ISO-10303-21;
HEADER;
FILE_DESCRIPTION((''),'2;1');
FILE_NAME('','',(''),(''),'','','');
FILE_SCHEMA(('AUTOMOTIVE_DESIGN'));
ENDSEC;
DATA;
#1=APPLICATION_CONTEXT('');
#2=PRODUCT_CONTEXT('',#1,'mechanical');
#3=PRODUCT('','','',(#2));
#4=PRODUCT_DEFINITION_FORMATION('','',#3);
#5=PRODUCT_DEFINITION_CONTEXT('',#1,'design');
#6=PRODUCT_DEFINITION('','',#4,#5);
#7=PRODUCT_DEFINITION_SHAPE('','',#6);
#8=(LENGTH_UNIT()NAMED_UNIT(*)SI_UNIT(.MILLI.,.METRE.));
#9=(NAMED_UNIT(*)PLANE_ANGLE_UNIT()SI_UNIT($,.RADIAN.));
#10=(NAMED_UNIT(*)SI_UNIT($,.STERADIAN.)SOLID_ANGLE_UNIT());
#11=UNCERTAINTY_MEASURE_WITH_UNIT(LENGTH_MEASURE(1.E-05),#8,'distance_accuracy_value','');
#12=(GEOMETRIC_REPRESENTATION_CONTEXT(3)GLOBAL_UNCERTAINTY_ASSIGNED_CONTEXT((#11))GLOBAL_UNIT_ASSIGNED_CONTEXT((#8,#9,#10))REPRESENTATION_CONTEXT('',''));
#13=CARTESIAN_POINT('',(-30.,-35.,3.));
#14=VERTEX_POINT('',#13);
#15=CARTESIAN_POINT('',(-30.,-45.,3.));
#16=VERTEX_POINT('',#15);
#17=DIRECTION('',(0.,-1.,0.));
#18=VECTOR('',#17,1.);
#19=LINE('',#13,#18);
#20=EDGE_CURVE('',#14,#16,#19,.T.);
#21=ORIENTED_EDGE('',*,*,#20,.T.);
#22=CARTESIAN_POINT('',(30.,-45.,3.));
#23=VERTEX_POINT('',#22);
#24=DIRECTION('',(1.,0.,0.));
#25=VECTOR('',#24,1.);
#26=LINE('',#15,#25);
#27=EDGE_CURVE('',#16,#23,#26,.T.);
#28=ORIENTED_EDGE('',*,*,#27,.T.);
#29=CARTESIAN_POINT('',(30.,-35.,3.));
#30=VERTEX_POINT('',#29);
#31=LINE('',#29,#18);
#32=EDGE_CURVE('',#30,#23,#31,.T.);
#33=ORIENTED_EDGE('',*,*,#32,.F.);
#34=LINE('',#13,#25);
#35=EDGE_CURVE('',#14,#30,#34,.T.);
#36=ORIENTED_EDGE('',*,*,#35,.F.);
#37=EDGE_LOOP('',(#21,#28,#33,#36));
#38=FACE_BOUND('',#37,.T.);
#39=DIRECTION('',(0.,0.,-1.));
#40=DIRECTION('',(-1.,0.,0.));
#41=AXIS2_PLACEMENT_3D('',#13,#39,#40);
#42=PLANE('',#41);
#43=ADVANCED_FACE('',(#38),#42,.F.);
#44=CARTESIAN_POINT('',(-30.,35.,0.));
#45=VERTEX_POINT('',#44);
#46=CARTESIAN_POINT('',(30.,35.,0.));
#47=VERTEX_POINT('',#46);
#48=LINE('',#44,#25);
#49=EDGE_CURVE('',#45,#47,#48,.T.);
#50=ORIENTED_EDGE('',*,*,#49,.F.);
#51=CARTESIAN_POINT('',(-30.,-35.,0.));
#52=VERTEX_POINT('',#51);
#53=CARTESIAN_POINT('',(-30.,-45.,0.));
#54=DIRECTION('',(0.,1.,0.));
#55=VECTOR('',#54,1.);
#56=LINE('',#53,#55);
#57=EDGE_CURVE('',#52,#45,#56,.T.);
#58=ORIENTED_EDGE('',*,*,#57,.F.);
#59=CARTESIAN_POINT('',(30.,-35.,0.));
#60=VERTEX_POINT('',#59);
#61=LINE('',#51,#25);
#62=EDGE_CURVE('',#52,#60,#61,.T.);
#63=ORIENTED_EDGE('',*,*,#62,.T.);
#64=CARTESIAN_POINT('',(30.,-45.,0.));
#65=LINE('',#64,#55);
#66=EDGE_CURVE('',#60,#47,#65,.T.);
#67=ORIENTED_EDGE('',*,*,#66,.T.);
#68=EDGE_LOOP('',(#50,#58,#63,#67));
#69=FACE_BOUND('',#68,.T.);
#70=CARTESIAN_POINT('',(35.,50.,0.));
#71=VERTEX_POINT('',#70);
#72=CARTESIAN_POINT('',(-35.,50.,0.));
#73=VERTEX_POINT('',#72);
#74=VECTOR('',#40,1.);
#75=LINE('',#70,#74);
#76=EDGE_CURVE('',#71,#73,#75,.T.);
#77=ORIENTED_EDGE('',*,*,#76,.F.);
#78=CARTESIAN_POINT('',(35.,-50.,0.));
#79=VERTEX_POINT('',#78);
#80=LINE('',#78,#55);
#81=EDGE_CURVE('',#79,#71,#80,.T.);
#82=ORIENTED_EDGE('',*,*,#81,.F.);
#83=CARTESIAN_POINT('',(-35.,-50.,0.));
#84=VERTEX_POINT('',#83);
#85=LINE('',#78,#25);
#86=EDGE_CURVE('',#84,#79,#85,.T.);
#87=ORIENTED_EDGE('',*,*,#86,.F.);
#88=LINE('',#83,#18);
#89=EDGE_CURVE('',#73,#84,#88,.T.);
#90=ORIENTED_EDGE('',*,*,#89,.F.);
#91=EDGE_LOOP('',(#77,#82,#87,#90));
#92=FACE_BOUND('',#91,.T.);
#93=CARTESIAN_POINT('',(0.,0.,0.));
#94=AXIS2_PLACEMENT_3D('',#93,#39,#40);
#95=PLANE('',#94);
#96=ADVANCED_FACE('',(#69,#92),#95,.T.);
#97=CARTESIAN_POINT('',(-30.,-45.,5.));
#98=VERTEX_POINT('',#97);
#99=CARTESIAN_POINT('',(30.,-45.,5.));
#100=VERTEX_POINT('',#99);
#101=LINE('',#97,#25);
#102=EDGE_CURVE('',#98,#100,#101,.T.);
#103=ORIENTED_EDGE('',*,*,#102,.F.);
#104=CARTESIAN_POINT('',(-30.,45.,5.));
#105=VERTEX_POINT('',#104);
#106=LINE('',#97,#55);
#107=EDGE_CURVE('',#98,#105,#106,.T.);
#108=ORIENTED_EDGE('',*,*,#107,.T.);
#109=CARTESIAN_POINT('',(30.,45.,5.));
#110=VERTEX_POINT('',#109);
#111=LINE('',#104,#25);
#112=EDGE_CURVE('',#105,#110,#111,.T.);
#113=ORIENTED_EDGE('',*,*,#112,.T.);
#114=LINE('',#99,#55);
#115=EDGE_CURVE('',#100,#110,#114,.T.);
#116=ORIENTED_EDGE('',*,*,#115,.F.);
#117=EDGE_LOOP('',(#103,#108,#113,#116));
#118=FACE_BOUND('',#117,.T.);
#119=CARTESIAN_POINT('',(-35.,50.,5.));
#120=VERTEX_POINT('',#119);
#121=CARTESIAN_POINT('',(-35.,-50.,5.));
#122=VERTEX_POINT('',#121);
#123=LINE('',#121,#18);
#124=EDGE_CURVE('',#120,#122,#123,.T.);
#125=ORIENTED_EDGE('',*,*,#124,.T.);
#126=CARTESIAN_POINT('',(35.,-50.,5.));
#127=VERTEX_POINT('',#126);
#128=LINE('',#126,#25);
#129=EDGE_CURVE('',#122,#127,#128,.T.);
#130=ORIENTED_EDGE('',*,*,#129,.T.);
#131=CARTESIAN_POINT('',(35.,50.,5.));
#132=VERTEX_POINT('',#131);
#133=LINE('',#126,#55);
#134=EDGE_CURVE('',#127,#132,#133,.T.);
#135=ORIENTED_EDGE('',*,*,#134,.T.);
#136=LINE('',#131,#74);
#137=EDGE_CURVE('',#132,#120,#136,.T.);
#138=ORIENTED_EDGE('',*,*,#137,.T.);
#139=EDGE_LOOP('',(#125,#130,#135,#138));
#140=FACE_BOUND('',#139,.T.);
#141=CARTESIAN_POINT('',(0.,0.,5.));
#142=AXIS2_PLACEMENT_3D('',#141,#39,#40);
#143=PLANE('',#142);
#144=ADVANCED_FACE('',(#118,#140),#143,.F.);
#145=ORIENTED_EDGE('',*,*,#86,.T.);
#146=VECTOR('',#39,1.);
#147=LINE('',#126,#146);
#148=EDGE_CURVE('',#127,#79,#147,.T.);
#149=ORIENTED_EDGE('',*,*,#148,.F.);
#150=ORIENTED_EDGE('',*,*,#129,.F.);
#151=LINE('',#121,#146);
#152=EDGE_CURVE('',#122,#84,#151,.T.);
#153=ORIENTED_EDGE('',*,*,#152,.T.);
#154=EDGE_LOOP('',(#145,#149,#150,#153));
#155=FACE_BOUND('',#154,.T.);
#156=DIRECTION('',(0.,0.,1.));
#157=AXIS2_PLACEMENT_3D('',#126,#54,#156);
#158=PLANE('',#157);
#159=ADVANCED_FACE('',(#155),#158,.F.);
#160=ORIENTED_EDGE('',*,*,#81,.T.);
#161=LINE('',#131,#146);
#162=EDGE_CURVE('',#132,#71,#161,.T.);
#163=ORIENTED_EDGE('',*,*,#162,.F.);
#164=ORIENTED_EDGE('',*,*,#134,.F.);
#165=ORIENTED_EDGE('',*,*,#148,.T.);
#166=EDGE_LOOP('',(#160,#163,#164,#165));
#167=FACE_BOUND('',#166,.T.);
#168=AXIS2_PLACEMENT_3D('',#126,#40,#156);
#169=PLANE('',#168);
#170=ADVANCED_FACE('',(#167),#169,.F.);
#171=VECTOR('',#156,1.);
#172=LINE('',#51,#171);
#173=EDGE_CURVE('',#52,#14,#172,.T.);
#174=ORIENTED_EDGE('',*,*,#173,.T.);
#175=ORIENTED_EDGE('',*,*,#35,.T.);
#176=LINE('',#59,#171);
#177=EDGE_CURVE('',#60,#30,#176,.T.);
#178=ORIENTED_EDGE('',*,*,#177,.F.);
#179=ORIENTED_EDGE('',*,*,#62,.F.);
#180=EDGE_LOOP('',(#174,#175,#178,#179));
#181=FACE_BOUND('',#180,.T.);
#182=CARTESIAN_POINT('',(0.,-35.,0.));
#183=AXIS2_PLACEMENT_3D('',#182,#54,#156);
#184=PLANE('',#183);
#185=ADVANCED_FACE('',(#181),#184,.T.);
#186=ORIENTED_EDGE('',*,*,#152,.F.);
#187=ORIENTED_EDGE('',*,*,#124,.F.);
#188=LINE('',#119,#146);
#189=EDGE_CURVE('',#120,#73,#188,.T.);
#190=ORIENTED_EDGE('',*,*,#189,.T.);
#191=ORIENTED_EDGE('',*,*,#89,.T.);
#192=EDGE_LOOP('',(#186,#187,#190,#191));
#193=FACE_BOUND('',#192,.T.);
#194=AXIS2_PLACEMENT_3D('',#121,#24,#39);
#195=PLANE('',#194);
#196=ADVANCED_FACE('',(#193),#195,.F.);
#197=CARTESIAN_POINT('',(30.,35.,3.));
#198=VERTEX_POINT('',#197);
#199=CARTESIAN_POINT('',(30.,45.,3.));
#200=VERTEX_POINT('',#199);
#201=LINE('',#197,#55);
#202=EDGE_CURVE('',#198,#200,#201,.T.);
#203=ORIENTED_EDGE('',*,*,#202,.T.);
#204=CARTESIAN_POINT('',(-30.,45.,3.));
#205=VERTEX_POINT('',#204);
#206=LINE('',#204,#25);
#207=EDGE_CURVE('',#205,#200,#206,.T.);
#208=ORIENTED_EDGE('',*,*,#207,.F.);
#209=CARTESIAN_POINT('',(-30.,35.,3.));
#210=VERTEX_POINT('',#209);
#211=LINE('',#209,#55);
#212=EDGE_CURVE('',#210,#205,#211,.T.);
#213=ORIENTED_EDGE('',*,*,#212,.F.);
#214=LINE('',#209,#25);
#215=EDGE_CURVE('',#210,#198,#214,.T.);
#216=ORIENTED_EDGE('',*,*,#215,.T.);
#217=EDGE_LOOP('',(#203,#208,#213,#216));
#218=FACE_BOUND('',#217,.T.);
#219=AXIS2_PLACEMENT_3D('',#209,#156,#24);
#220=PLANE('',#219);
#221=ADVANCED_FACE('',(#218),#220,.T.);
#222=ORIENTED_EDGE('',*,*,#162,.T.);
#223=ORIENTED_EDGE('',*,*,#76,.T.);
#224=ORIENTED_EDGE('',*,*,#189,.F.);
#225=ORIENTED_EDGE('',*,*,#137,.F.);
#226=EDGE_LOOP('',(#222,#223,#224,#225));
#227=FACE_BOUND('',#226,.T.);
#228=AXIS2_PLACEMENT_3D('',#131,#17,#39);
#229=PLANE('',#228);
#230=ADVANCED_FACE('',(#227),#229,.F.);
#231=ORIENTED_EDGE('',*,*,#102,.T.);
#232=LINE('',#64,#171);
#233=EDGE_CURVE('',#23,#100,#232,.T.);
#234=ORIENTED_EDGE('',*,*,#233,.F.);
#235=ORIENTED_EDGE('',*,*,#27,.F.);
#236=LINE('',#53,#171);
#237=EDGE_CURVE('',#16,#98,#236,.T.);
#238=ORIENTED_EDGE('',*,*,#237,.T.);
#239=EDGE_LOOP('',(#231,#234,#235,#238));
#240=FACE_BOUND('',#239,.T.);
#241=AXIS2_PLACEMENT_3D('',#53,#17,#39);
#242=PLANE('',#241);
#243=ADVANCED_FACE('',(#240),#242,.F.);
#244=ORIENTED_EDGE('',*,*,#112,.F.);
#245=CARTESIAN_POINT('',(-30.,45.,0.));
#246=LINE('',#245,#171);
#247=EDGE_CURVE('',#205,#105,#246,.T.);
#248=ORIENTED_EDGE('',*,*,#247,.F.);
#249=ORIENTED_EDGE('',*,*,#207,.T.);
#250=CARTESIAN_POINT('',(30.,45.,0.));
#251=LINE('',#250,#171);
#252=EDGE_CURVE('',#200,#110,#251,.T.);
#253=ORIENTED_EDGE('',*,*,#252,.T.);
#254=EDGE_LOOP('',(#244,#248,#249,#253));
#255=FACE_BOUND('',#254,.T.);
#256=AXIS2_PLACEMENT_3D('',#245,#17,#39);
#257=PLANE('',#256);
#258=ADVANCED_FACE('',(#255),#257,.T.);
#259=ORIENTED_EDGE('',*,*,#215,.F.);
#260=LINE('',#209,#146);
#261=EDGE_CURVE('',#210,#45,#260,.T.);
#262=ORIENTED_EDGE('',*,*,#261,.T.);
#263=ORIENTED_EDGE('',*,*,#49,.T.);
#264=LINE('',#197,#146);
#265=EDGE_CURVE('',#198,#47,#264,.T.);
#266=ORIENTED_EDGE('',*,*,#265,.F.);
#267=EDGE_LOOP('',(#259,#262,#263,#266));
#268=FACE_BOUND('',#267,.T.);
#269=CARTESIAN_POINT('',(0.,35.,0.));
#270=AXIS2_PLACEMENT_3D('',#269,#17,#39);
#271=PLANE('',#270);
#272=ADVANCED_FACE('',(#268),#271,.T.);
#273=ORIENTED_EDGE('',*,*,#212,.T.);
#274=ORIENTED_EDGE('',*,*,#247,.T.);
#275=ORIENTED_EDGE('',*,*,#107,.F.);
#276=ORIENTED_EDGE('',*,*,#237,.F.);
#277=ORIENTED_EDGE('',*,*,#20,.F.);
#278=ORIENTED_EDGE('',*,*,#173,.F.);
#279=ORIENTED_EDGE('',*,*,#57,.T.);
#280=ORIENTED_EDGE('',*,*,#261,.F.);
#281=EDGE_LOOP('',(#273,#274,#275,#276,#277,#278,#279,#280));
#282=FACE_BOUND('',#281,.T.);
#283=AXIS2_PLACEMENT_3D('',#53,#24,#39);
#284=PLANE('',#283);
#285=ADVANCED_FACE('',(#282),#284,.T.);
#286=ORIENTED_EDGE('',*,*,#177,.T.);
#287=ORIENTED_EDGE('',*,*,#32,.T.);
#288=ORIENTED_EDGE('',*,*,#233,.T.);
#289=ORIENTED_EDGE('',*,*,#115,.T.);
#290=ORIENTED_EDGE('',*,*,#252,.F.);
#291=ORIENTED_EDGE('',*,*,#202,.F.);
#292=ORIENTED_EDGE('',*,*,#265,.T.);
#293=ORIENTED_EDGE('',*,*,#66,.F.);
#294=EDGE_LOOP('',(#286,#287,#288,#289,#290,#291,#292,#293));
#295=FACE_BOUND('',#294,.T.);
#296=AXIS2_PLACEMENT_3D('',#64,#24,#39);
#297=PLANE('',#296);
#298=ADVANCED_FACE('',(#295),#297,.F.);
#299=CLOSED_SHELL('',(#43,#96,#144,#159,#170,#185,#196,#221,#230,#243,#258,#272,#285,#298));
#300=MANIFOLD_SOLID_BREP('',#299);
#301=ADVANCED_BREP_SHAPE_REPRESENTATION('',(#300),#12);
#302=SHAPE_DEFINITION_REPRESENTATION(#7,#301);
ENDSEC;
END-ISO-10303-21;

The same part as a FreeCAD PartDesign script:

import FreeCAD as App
import Part
import Sketcher
Q = App.Units.Quantity


def add_polygon(sketch, points):
    """Adds a closed chain of lines whose ends are joined by coincident constraints."""
    first, n = sketch.GeometryCount, len(points)
    for a, b in zip(points, points[1:] + points[:1]):
        sketch.addGeometry(Part.LineSegment(App.Vector(*a, 0), App.Vector(*b, 0)), False)
    for i in range(n):
        sketch.addConstraint(Sketcher.Constraint("Coincident", first + i, 2, first + (i + 1) % n, 1))

doc = App.newDocument("Part")
params = doc.addObject("Spreadsheet::Sheet", "Params")
for row, (alias, value) in enumerate([
    ("sketch1_width", "70 mm"),
    ("sketch1_height", "100 mm"),
    ("pad1_length", "5 mm"),
    ("sketch2_width", "60 mm"),
    ("sketch2_height", "90 mm"),
    ("sketch3_width", "60 mm"),
    ("sketch3_height", "3 mm"),
    ("pad2_length", "10 mm"),
    ("sketch4_width", "60 mm"),
    ("sketch4_height", "3 mm"),
    ("pad3_length", "10 mm"),
], start=1):
    params.set(f"A{row}", alias)
    params.set(f"B{row}", "=" + value)
    params.setAlias(f"B{row}", alias)

body = doc.addObject("PartDesign::Body", "Body")

# Sketch on XY plane
sketch1 = body.newObject("Sketcher::SketchObject", "Sketch")
sketch1.AttachmentSupport = (doc.getObject("XY_Plane"), [""])
sketch1.MapMode = "FlatFace"
add_polygon(sketch1, [(-35, -50), (35, -50), (35, 50), (-35, 50)])  # lines 0-3
sketch1.addConstraint([
    Sketcher.Constraint("Horizontal", 0),
    Sketcher.Constraint("Vertical", 1),
    Sketcher.Constraint("Horizontal", 2),
    Sketcher.Constraint("Vertical", 3),
    Sketcher.Constraint("Symmetric", 0, 2, 2, 2, -1, 1),
    Sketcher.Constraint("DistanceX", 0, 1, 0, 2, Q("70 mm")),
    Sketcher.Constraint("DistanceY", 1, 1, 1, 2, Q("100 mm")),
])
sketch1.setExpression("Constraints[9]", "Params.sketch1_width")
sketch1.setExpression("Constraints[10]", "Params.sketch1_height")
pad1 = body.newObject("PartDesign::Pad", "Pad")
pad1.Profile = sketch1
pad1.setExpression("Length", "Params.pad1_length")

# Sketch on XY plane
sketch2 = body.newObject("Sketcher::SketchObject", "Sketch001")
sketch2.AttachmentSupport = (doc.getObject("XY_Plane"), [""])
sketch2.MapMode = "FlatFace"
sketch2.AttachmentOffset = App.Placement(App.Vector(0, 0, 5), App.Rotation())
add_polygon(sketch2, [(-30, 45), (-30, -45), (30, -45), (30, 45)])  # lines 0-3
sketch2.addConstraint([
    Sketcher.Constraint("Vertical", 0),
    Sketcher.Constraint("Horizontal", 1),
    Sketcher.Constraint("Vertical", 2),
    Sketcher.Constraint("Horizontal", 3),
    Sketcher.Constraint("Symmetric", 0, 2, 2, 2, -1, 1),
    Sketcher.Constraint("DistanceX", 1, 1, 1, 2, Q("60 mm")),
    Sketcher.Constraint("DistanceY", 0, 2, 0, 1, Q("90 mm")),
])
sketch2.setExpression("Constraints[9]", "Params.sketch2_width")
sketch2.setExpression("Constraints[10]", "Params.sketch2_height")
pocket1 = body.newObject("PartDesign::Pocket", "Pocket")
pocket1.Profile = sketch2
pocket1.Type = "ThroughAll"

# Sketch on XZ plane
sketch3 = body.newObject("Sketcher::SketchObject", "Sketch002")
sketch3.AttachmentSupport = (doc.getObject("XZ_Plane"), [""])
sketch3.MapMode = "FlatFace"
sketch3.AttachmentOffset = App.Placement(App.Vector(0, 0, -45), App.Rotation())
add_polygon(sketch3, [(-30, 3), (-30, 0), (30, 0), (30, 3)])  # lines 0-3
sketch3.addConstraint([
    Sketcher.Constraint("Vertical", 0),
    Sketcher.Constraint("Horizontal", 1),
    Sketcher.Constraint("Vertical", 2),
    Sketcher.Constraint("Horizontal", 3),
    Sketcher.Constraint("Symmetric", 0, 2, 1, 2, -1, 1),
    Sketcher.Constraint("DistanceX", 1, 1, 1, 2, Q("60 mm")),
    Sketcher.Constraint("DistanceY", 0, 2, 0, 1, Q("3 mm")),
])
sketch3.setExpression("Constraints[9]", "Params.sketch3_width")
sketch3.setExpression("Constraints[10]", "Params.sketch3_height")
pad2 = body.newObject("PartDesign::Pad", "Pad001")
pad2.Profile = sketch3
pad2.setExpression("Length", "Params.pad2_length")

# Sketch on XZ plane
sketch4 = body.newObject("Sketcher::SketchObject", "Sketch003")
sketch4.AttachmentSupport = (doc.getObject("XZ_Plane"), [""])
sketch4.MapMode = "FlatFace"
sketch4.AttachmentOffset = App.Placement(App.Vector(0, 0, 45), App.Rotation())
add_polygon(sketch4, [(-30, 0), (-30, 3), (30, 3), (30, 0)])  # lines 0-3
sketch4.addConstraint([
    Sketcher.Constraint("Vertical", 0),
    Sketcher.Constraint("Horizontal", 1),
    Sketcher.Constraint("Vertical", 2),
    Sketcher.Constraint("Horizontal", 3),
    Sketcher.Constraint("Symmetric", 2, 2, 3, 2, -1, 1),
    Sketcher.Constraint("DistanceX", 1, 1, 1, 2, Q("60 mm")),
    Sketcher.Constraint("DistanceY", 0, 1, 0, 2, Q("3 mm")),
])
sketch4.setExpression("Constraints[9]", "Params.sketch4_width")
sketch4.setExpression("Constraints[10]", "Params.sketch4_height")
pad3 = body.newObject("PartDesign::Pad", "Pad002")
pad3.Profile = sketch4
pad3.setExpression("Length", "Params.pad3_length")
pad3.Reversed = True

doc.recompute()
